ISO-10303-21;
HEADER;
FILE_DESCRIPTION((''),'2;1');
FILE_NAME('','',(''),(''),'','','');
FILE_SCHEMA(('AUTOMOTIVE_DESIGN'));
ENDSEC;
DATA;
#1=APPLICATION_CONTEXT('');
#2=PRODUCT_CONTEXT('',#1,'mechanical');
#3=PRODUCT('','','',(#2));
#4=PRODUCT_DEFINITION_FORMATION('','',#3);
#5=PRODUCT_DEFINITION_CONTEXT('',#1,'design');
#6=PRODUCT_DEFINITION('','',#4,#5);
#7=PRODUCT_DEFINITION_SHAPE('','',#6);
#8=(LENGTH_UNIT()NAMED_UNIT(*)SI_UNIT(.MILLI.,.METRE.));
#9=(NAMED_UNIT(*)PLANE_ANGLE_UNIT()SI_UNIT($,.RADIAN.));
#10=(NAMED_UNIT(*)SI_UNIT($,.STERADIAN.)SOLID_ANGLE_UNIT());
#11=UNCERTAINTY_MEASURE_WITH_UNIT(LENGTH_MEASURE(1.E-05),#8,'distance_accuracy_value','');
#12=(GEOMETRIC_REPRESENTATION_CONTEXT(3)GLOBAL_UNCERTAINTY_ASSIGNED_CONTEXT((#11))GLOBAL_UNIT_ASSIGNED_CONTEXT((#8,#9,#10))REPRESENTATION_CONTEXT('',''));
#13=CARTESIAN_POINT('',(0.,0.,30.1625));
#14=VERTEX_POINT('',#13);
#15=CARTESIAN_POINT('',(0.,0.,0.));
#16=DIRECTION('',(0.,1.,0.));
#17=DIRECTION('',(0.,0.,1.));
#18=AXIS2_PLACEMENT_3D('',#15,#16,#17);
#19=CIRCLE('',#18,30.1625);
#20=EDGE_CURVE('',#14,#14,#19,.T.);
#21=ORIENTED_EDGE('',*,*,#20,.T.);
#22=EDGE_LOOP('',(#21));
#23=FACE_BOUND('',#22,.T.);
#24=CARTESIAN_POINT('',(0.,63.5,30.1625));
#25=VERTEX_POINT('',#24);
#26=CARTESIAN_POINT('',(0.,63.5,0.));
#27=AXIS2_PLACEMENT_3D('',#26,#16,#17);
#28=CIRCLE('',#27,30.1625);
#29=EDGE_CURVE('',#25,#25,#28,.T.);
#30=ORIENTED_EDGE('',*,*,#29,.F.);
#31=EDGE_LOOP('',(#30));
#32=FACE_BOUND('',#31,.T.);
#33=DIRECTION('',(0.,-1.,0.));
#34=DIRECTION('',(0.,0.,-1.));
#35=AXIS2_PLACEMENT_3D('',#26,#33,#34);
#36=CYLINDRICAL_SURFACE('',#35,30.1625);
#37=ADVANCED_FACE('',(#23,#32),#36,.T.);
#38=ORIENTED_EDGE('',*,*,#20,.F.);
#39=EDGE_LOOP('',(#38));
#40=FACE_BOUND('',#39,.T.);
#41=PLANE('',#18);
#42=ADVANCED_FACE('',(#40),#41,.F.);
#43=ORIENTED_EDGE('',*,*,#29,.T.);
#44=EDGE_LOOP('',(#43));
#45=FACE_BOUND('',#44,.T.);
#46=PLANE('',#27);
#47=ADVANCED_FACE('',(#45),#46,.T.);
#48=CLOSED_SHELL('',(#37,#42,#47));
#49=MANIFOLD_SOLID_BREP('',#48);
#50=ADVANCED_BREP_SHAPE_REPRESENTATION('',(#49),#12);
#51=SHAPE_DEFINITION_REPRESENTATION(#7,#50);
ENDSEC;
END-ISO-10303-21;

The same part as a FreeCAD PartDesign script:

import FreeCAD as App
import Part
import Sketcher
from FreeCAD import Vector
Q = App.Units.Quantity

doc = App.newDocument("Part")
params = doc.addObject("Spreadsheet::Sheet", "Params")
for row, (alias, value) in enumerate([
    ("sketch1_diameter", "2.375 in"),
    ("pad1_length", "2.5 in"),
], start=1):
    params.set(f"A{row}", alias)
    params.set(f"B{row}", "=" + value)
    params.setAlias(f"B{row}", alias)

body = doc.addObject("PartDesign::Body", "Body")

sketch1 = doc.addObject("Sketcher::SketchObject", "Sketch")
body.addObject(sketch1)
sketch1.AttachmentSupport = (doc.XZ_Plane, [""])
sketch1.MapMode = "FlatFace"
sketch1.addGeometry(Part.Circle(Vector(0, 0, 0), Vector(0, 0, 1), 30.1625), False)
sketch1.addConstraint(Sketcher.Constraint("Coincident", 0, 3, -1, 1))
sketch1.addConstraint(Sketcher.Constraint("Diameter", 0, Q("2.375 in")))
sketch1.setExpression("Constraints[1]", "Params.sketch1_diameter")
pad1 = doc.addObject("PartDesign::Pad", "Pad")
body.addObject(pad1)
pad1.Profile = sketch1
pad1.setExpression("Length", "Params.pad1_length")
pad1.Reversed = True

doc.recompute()
